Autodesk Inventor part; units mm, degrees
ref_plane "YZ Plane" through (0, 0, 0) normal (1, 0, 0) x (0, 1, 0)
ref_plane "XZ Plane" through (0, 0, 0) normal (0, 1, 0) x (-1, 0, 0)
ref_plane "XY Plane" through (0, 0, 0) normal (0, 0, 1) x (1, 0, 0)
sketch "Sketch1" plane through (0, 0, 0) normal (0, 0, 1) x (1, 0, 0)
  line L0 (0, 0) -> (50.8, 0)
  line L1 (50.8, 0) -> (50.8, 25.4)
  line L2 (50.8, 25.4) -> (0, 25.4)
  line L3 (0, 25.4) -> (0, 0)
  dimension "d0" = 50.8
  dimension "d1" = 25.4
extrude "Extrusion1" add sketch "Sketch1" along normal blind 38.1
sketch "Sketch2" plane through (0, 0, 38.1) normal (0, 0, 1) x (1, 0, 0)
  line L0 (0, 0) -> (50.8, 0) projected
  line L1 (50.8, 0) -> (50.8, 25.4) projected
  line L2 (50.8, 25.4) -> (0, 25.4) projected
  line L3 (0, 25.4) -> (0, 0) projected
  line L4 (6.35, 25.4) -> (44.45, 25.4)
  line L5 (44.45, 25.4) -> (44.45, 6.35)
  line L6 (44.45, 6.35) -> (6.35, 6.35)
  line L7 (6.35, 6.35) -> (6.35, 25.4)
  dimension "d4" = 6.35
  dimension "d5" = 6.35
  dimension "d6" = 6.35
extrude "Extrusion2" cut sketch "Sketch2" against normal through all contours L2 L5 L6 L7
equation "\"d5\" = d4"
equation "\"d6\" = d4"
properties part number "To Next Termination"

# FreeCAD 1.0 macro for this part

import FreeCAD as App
import Part
import Sketcher

V = App.Vector
Q = App.Units.Quantity


def add_polygon(sketch, points):
    """Adds a closed chain of lines whose ends are joined by coincident constraints."""
    first, n = sketch.GeometryCount, len(points)
    for a, b in zip(points, points[1:] + points[:1]):
        sketch.addGeometry(Part.LineSegment(App.Vector(*a, 0), App.Vector(*b, 0)), False)
    for i in range(n):
        sketch.addConstraint(Sketcher.Constraint("Coincident", first + i, 2, first + (i + 1) % n, 1))

doc = App.newDocument("Part")
params = doc.addObject("Spreadsheet::Sheet", "Params")
for row, (alias, value) in enumerate([
    ("sketch1_width", "2 in"),
    ("sketch1_height", "1 in"),
    ("pad1_length", "1.5 in"),
    ("sketch2_width", "1.5 in"),
], start=1):
    params.set(f"A{row}", alias)
    params.set(f"B{row}", "=" + value)
    params.setAlias(f"B{row}", alias)

body = doc.addObject("PartDesign::Body", "Body")

sketch1 = body.newObject("Sketcher::SketchObject", "Sketch")
sketch1.AttachmentSupport = (doc.getObject("XY_Plane"), [""])
sketch1.MapMode = "FlatFace"
add_polygon(sketch1, [(0, 25), (0, 0), (51, 0), (51, 25)])
sketch1.addConstraint([
    Sketcher.Constraint("Vertical", 0),
    Sketcher.Constraint("Horizontal", 1),
    Sketcher.Constraint("Vertical", 2),
    Sketcher.Constraint("Horizontal", 3),
    Sketcher.Constraint("Coincident", 0, 2, -1, 1),
    Sketcher.Constraint("DistanceX", 1, 1, 1, 2, Q("2 in")),
    Sketcher.Constraint("DistanceY", 0, 2, 0, 1, Q("1 in")),
])
sketch1.setExpression("Constraints[9]", "Params.sketch1_width")
sketch1.setExpression("Constraints[10]", "Params.sketch1_height")
pad1 = body.newObject("PartDesign::Pad", "Pad")
pad1.Profile = sketch1
pad1.setExpression("Length", "Params.pad1_length")

sketch2 = body.newObject("Sketcher::SketchObject", "Sketch001")
sketch2.AttachmentSupport = (doc.getObject("XY_Plane"), [""])
sketch2.MapMode = "FlatFace"
sketch2.AttachmentOffset = App.Placement(V(0, 0, 1.5 * 25.4), App.Rotation())
add_polygon(sketch2, [(44, 25), (6, 25), (6, 6), (44, 6)])
sketch2.addConstraint([
    Sketcher.Constraint("Horizontal", 0),
    Sketcher.Constraint("Vertical", 1),
    Sketcher.Constraint("Horizontal", 2),
    Sketcher.Constraint("Vertical", 3),
    Sketcher.Constraint("DistanceX", -1, 1, 0, 2, Q("0.25 in")),
    Sketcher.Constraint("DistanceY", -1, 1, 1, 2, Q("0.25 in")),
    Sketcher.Constraint("DistanceX", 0, 2, 0, 1, Q("1.5 in")),
    Sketcher.Constraint("DistanceY", -1, 1, 0, 2, Q("1 in")),
])
sketch2.setExpression("Constraints[10]", "Params.sketch2_width")
pocket1 = body.newObject("PartDesign::Pocket", "Pocket")
pocket1.Profile = sketch2
pocket1.Type = "ThroughAll"

doc.recompute()
